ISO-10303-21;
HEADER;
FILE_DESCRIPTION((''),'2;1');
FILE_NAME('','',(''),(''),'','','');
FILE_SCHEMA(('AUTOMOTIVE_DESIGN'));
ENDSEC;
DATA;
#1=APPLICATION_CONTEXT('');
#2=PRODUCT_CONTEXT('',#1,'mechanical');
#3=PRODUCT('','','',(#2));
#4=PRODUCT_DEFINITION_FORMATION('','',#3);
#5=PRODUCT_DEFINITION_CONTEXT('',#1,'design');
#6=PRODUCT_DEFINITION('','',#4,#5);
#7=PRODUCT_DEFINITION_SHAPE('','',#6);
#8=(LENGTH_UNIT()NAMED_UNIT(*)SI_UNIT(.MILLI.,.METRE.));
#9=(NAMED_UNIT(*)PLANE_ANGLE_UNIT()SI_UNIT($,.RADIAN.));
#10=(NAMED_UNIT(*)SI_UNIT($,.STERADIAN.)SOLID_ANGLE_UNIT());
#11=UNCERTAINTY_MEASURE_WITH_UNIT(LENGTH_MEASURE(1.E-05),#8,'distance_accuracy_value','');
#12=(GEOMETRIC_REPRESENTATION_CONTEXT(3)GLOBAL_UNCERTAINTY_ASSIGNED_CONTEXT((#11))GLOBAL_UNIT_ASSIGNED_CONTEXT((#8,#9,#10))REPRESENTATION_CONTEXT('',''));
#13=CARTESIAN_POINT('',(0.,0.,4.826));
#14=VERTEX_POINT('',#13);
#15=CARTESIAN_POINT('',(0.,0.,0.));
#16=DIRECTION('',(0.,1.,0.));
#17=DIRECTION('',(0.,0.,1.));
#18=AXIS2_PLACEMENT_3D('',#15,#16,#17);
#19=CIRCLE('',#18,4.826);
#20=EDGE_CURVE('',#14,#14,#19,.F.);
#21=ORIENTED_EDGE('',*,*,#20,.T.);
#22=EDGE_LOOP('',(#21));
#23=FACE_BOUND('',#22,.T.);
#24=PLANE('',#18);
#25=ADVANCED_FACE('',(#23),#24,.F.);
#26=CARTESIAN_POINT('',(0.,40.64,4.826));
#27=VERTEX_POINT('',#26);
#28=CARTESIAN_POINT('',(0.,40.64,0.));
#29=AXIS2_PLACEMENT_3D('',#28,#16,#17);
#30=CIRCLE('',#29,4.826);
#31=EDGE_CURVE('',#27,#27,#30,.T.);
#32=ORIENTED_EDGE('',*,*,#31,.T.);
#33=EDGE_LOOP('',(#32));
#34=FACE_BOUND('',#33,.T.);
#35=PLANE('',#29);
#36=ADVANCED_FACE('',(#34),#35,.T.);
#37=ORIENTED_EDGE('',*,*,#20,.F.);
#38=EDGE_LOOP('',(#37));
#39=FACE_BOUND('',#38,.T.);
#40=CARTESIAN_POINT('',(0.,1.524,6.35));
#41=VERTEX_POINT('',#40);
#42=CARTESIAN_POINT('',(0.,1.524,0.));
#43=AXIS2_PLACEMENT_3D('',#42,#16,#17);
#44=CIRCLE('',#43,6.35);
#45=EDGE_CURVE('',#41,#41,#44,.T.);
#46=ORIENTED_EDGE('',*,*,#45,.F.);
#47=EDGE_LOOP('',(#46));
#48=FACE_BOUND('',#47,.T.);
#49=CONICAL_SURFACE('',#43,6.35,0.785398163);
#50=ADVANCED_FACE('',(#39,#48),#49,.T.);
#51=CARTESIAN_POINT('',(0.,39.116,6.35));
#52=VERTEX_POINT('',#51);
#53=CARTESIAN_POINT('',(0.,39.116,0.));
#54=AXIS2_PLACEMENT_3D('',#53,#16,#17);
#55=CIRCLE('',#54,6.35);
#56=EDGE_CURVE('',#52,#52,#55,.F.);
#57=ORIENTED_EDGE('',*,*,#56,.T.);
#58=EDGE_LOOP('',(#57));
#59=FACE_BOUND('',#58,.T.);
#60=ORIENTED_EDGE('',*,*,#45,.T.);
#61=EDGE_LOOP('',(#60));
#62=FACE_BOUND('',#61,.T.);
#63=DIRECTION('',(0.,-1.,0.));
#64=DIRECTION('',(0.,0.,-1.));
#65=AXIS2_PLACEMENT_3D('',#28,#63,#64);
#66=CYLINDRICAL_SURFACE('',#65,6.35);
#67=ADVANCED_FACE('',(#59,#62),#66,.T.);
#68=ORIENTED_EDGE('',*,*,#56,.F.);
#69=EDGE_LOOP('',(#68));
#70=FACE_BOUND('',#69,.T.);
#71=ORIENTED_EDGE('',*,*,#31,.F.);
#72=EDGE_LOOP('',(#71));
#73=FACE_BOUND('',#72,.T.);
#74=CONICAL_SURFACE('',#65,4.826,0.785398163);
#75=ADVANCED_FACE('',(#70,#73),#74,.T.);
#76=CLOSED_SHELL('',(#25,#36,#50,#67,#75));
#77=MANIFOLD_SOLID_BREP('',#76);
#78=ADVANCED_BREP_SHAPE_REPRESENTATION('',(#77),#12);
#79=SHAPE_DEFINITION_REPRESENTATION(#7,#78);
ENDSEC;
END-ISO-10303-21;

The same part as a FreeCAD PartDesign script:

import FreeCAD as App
import Part
import Sketcher
from FreeCAD import Vector
Q = App.Units.Quantity


def edges_at(feature, points):
    """Names of the edges that pass closest to the given points."""
    edges = feature.Shape.Edges
    near = lambda p: min(range(len(edges)), key=lambda i: edges[i].distToShape(Part.Vertex(*p))[0])
    return sorted({f"Edge{near(p) + 1}" for p in points})

doc = App.newDocument("Part")
params = doc.addObject("Spreadsheet::Sheet", "Params")
for row, (alias, value) in enumerate([
    ("sketch1_diameter", "0.5 in"),
    ("pad1_length", "1.6 in"),
    ("chamfer_size", "0.06 in"),
], start=1):
    params.set(f"A{row}", alias)
    params.set(f"B{row}", "=" + value)
    params.setAlias(f"B{row}", alias)

body = doc.addObject("PartDesign::Body", "Body")

sketch1 = doc.addObject("Sketcher::SketchObject", "Sketch")
body.addObject(sketch1)
sketch1.AttachmentSupport = (doc.XZ_Plane, [""])
sketch1.MapMode = "FlatFace"
sketch1.addGeometry(Part.Circle(Vector(0, 0, 0), Vector(0, 0, 1), 6.35), False)
sketch1.addConstraint([
    Sketcher.Constraint("Coincident", 0, 3, -1, 1),
    Sketcher.Constraint("Diameter", 0, Q("0.5 in")),
])
sketch1.setExpression("Constraints[1]", "Params.sketch1_diameter")
pad1 = doc.addObject("PartDesign::Pad", "Pad")
body.addObject(pad1)
pad1.Profile = sketch1
pad1.setExpression("Length", "Params.pad1_length")
pad1.Reversed = True
doc.recompute()

chamfer = doc.addObject("PartDesign::Chamfer", "Chamfer")
body.addObject(chamfer)
chamfer.Base = (pad1, edges_at(pad1, [(-6.35, 0, 0), (-6.35, 40.64, 0)]))
chamfer.setExpression("Size", "Params.chamfer_size")

doc.recompute()
